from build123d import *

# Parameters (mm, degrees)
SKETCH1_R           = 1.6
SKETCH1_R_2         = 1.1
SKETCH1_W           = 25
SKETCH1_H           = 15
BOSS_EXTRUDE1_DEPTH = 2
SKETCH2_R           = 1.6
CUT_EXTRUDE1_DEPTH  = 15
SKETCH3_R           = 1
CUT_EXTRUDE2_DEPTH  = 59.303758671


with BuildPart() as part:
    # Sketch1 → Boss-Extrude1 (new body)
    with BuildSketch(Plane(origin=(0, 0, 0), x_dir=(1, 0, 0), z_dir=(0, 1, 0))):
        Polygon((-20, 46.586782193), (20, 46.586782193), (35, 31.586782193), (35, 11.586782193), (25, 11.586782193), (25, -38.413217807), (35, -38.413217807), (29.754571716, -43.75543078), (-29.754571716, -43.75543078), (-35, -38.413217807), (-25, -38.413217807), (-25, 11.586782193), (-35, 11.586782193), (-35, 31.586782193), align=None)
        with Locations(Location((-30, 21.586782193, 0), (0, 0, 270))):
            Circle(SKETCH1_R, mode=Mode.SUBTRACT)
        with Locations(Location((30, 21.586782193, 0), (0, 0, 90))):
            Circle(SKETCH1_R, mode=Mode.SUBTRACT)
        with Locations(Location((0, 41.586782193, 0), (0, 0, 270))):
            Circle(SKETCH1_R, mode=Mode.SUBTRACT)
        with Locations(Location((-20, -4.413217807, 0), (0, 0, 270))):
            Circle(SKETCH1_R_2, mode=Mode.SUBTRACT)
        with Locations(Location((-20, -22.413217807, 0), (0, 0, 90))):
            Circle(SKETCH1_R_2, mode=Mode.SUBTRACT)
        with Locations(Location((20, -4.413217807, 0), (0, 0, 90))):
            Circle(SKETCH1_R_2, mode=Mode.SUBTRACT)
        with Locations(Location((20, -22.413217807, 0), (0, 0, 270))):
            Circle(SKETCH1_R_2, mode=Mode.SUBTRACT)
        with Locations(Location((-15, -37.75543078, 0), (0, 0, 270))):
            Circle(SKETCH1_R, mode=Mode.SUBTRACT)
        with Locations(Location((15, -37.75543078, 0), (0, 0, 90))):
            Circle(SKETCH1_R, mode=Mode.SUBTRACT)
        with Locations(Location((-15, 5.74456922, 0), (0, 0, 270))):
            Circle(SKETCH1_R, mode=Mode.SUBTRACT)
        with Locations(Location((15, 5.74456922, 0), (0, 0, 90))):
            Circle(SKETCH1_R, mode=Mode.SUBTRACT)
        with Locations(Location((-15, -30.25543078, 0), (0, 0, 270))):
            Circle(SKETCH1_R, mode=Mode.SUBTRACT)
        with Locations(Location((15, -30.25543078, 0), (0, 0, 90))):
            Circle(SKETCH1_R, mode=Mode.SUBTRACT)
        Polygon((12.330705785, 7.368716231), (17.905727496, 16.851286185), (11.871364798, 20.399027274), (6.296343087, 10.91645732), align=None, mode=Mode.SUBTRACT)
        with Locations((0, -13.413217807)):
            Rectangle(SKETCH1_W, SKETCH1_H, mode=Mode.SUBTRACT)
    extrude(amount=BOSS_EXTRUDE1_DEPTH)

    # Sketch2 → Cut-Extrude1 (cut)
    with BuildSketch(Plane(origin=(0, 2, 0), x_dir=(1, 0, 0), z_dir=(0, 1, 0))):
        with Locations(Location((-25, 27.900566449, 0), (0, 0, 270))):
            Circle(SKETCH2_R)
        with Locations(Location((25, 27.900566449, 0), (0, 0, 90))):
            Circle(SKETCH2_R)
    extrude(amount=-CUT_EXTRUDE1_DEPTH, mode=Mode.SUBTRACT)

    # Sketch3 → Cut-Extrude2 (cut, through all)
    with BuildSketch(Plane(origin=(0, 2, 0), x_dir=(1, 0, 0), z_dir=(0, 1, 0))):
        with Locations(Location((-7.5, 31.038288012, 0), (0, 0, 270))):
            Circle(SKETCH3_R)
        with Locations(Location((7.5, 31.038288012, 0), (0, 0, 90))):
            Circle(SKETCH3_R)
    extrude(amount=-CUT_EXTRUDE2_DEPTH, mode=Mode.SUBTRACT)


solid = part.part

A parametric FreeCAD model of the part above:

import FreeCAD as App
import Part
import Sketcher

V = App.Vector


def add_polygon(sketch, points):
    """Adds a closed chain of lines whose ends are joined by coincident constraints."""
    first, n = sketch.GeometryCount, len(points)
    for a, b in zip(points, points[1:] + points[:1]):
        sketch.addGeometry(Part.LineSegment(App.Vector(*a, 0), App.Vector(*b, 0)), False)
    for i in range(n):
        sketch.addConstraint(Sketcher.Constraint("Coincident", first + i, 2, first + (i + 1) % n, 1))

doc = App.newDocument("Part")
body = doc.addObject("PartDesign::Body", "Body")

sketch1 = body.newObject("Sketcher::SketchObject", "Sketch")
sketch1.AttachmentSupport = (doc.getObject("XZ_Plane"), [""])
sketch1.MapMode = "FlatFace"
add_polygon(sketch1, [(20, -46.6), (-20, -46.6), (-35, -31.6), (-35, -11.6), (-25, -11.6), (-25, 38.4), (-35, 38.4), (-29.8, 43.8), (29.8, 43.8), (35, 38.4), (25, 38.4), (25, -11.6), (35, -11.6), (35, -31.6)])
sketch1.addGeometry(Part.Circle(V(20, 22.4, 0), V(0, 0, 1), 1.1), False)
sketch1.addGeometry(Part.Circle(V(15, 37.8, 0), V(0, 0, 1), 1.6), False)
sketch1.addGeometry(Part.Circle(V(15, 30.3, 0), V(0, 0, 1), 1.6), False)
sketch1.addGeometry(Part.Circle(V(20, 4.4, 0), V(0, 0, 1), 1.1), False)
add_polygon(sketch1, [(-12.5, 20.9), (-12.5, 5.9), (12.5, 5.9), (12.5, 20.9)])
sketch1.addGeometry(Part.Circle(V(-15, 37.8, 0), V(0, 0, 1), 1.6), False)
sketch1.addGeometry(Part.Circle(V(-15, 30.3, 0), V(0, 0, 1), 1.6), False)
sketch1.addGeometry(Part.Circle(V(-20, 22.4, 0), V(0, 0, 1), 1.1), False)
sketch1.addGeometry(Part.Circle(V(-20, 4.4, 0), V(0, 0, 1), 1.1), False)
sketch1.addGeometry(Part.Circle(V(30, -21.6, 0), V(0, 0, 1), 1.6), False)
sketch1.addGeometry(Part.Circle(V(15, -5.7, 0), V(0, 0, 1), 1.6), False)
add_polygon(sketch1, [(12.3, -7.4), (6.3, -10.9), (11.9, -20.4), (17.9, -16.9)])
sketch1.addGeometry(Part.Circle(V(0, -41.6, 0), V(0, 0, 1), 1.6), False)
sketch1.addGeometry(Part.Circle(V(-15, -5.7, 0), V(0, 0, 1), 1.6), False)
sketch1.addGeometry(Part.Circle(V(-30, -21.6, 0), V(0, 0, 1), 1.6), False)
sketch1.addConstraint([
    Sketcher.Constraint("Horizontal", 0),
    Sketcher.Constraint("Vertical", 2),
    Sketcher.Constraint("Horizontal", 3),
    Sketcher.Constraint("Vertical", 4),
    Sketcher.Constraint("Horizontal", 5),
    Sketcher.Constraint("Horizontal", 7),
    Sketcher.Constraint("Horizontal", 9),
    Sketcher.Constraint("Vertical", 10),
    Sketcher.Constraint("Horizontal", 11),
    Sketcher.Constraint("Vertical", 12),
    Sketcher.Constraint("Vertical", 18),
    Sketcher.Constraint("Horizontal", 19),
    Sketcher.Constraint("Vertical", 20),
    Sketcher.Constraint("Horizontal", 21),
    Sketcher.Constraint("Equal", 15, 16),
    Sketcher.Constraint("Equal", 14, 17),
    Sketcher.Constraint("Equal", 16, 22),
    Sketcher.Constraint("Equal", 22, 23),
    Sketcher.Constraint("Equal", 17, 24),
    Sketcher.Constraint("Equal", 24, 25),
    Sketcher.Constraint("Equal", 23, 26),
    Sketcher.Constraint("Equal", 26, 27),
    Sketcher.Constraint("Equal", 27, 32),
    Sketcher.Constraint("Equal", 32, 33),
    Sketcher.Constraint("Equal", 33, 34),
    Sketcher.Constraint("Symmetric", 15, 3, 22, 3, -2),
    Sketcher.Constraint("Symmetric", 16, 3, 23, 3, -2),
    Sketcher.Constraint("Symmetric", 14, 3, 24, 3, -2),
    Sketcher.Constraint("Symmetric", 17, 3, 25, 3, -2),
    Sketcher.Constraint("Symmetric", 27, 3, 33, 3, -2),
    Sketcher.Constraint("Symmetric", 26, 3, 34, 3, -2),
    Sketcher.Constraint("Symmetric", 5, 2, 8, 2, -2),
    Sketcher.Constraint("Symmetric", 3, 2, 10, 2, -2),
    Sketcher.Constraint("Symmetric", 1, 2, 12, 2, -2),
    Sketcher.Constraint("PointOnObject", 32, 3, -2),
    Sketcher.Constraint("Perpendicular", 1, 13),
    Sketcher.Constraint("Perpendicular", 28, 29),
    Sketcher.Constraint("Perpendicular", 29, 30),
    Sketcher.Constraint("Perpendicular", 30, 31),
    Sketcher.Constraint("Vertical", 15, 3, 16, 3),
    Sketcher.Constraint("Vertical", 14, 3, 17, 3),
    Sketcher.Constraint("Vertical", 16, 3, 27, 3),
    Sketcher.Constraint("Vertical", 25, 3, 0, 2),
    Sketcher.Constraint("Vertical", 2, 2, 5, 2),
    Sketcher.Constraint("Vertical", 17, 3, 13, 2),
    Sketcher.Constraint("Equal", 6, 8),
    Sketcher.Constraint("Diameter", 14, 2.2),
    Sketcher.Constraint("Diameter", 15, 3.2),
    Sketcher.Constraint("DistanceX", 0, 2, 0, 1, 40.0),
    Sketcher.Constraint("DistanceX", 3, 1, 3, 2, 10.0),
    Sketcher.Constraint("DistanceX", 19, 1, 19, 2, 25.0),
    Sketcher.Constraint("DistanceY", 2, 1, 2, 2, 20.0),
    Sketcher.Constraint("DistanceY", 4, 1, 4, 2, 50.0),
    Sketcher.Constraint("DistanceY", 18, 2, 18, 1, 15.0),
    Sketcher.Constraint("Distance", 28, 7.0),
    Sketcher.Constraint("Distance", 29, 11.0),
    Sketcher.Constraint("DistanceX", -1, 1, 15, 3, 15.0),
    Sketcher.Constraint("DistanceX", -1, 1, 26, 3, 30.0),
    Sketcher.Constraint("DistanceX", 1, 2, -1, 1, 35.0),
    Sketcher.Constraint("DistanceY", 17, 3, 14, 3, 18.0),
    Sketcher.Constraint("DistanceY", 26, 3, 17, 3, 26.0),
    Sketcher.Constraint("DistanceY", 27, 3, 16, 3, 36.0),
    Sketcher.Constraint("DistanceY", 32, 3, 26, 3, 20.0),
    Sketcher.Constraint("DistanceY", 0, 2, 32, 3, 5.0),
    Sketcher.Constraint("DistanceY", 22, 3, 6, 2, 6.0),
    Sketcher.Constraint("DistanceX", 18, 2, -1, 1, 12.5),
    Sketcher.Constraint("DistanceY", 16, 3, 15, 3, 7.5),
    Sketcher.Constraint("DistanceY", 25, 3, 18, 2, 1.5),
    Sketcher.Constraint("DistanceX", 7, 1, 7, 2, 59.509143),
    Sketcher.Constraint("DistanceY", -1, 1, 15, 3, 37.755431),
    Sketcher.Constraint("DistanceY", 28, 2, 27, 3, 5.171888),
    Sketcher.Constraint("DistanceX", 28, 2, 29, 2, 5.575022),
    Sketcher.Constraint("Distance", 6, 7.486906),
    Sketcher.Constraint("DistanceX", -1, 1, 28, 2, 6.296343),
])
pad1 = body.newObject("PartDesign::Pad", "Pad")
pad1.Profile = sketch1
pad1.Length = 2
pad1.Reversed = True

sketch2 = body.newObject("Sketcher::SketchObject", "Sketch001")
sketch2.AttachmentSupport = (doc.getObject("XZ_Plane"), [""])
sketch2.MapMode = "FlatFace"
sketch2.AttachmentOffset = App.Placement(V(0, 0, -2), App.Rotation())
sketch2.addGeometry([
    Part.Circle(V(-25, -27.9, 0), V(0, 0, 1), 1.6),
    Part.Circle(V(25, -27.9, 0), V(0, 0, 1), 1.6),
], False)
sketch2.addConstraint([
    Sketcher.Constraint("Equal", 0, 1),
    Sketcher.Constraint("Symmetric", 0, 3, 1, 3, -2),
    Sketcher.Constraint("Diameter", 0, 3.2),
    Sketcher.Constraint("DistanceX", 0, 3, -1, 1, 25.0),
    Sketcher.Constraint("DistanceY", 0, 3, -1, 1, 27.900566),
])
pocket1 = body.newObject("PartDesign::Pocket", "Pocket")
pocket1.Profile = sketch2
pocket1.Length = 15
pocket1.Reversed = True

sketch3 = body.newObject("Sketcher::SketchObject", "Sketch002")
sketch3.AttachmentSupport = (doc.getObject("XZ_Plane"), [""])
sketch3.MapMode = "FlatFace"
sketch3.AttachmentOffset = App.Placement(V(0, 0, -2), App.Rotation())
sketch3.addGeometry([
    Part.Circle(V(-7.5, -31, 0), V(0, 0, 1), 1),
    Part.Circle(V(7.5, -31, 0), V(0, 0, 1), 1),
], False)
sketch3.addConstraint([
    Sketcher.Constraint("Equal", 0, 1),
    Sketcher.Constraint("Symmetric", 0, 3, 1, 3, -2),
    Sketcher.Constraint("Diameter", 0, 2.0),
    Sketcher.Constraint("DistanceX", 0, 3, 1, 3, 15.0),
    Sketcher.Constraint("DistanceY", 0, 3, -1, 1, 31.038288),
])
pocket2 = body.newObject("PartDesign::Pocket", "Pocket001")
pocket2.Profile = sketch3
pocket2.Type = "ThroughAll"
pocket2.Reversed = True

doc.recompute()
